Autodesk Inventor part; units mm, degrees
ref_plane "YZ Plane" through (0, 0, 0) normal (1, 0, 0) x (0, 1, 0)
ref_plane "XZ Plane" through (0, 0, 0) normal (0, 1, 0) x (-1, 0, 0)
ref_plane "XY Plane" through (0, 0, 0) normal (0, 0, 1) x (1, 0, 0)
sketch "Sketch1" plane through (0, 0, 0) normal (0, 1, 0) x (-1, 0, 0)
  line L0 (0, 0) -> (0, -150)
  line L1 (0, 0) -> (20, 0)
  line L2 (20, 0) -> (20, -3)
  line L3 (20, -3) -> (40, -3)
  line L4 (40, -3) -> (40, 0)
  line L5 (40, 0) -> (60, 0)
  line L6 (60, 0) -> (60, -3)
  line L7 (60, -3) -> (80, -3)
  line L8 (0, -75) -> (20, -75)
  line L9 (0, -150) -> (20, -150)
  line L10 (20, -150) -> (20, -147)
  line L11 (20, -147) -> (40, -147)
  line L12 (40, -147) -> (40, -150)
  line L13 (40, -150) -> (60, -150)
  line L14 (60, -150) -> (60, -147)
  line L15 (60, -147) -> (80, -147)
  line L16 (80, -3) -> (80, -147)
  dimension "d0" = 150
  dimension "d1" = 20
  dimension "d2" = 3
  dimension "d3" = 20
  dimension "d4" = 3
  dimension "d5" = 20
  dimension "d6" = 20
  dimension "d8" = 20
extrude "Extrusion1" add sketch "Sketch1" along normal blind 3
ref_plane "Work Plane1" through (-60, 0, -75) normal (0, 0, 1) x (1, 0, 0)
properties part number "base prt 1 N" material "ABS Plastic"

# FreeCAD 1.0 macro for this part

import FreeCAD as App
import Part
import Sketcher

V = App.Vector
Q = App.Units.Quantity

doc = App.newDocument("Part")
body = doc.addObject("PartDesign::Body", "Body")

sketch1 = doc.addObject("Sketcher::SketchObject", "Sketch")
body.addObject(sketch1)
sketch1.AttachmentSupport = (doc.XZ_Plane, [""])
sketch1.MapMode = "FlatFace"
sketch1.addGeometry(Part.LineSegment(V(-20, 0, 0), V(0, 0, 0)), False)
sketch1.addGeometry(Part.LineSegment(V(0, 0, 0), V(0, -150, 0)), False)
sketch1.addGeometry(Part.LineSegment(V(0, -150, 0), V(-20, -150, 0)), False)
sketch1.addGeometry(Part.LineSegment(V(-20, -150, 0), V(-20, -147, 0)), False)
sketch1.addGeometry(Part.LineSegment(V(-20, -147, 0), V(-40, -147, 0)), False)
sketch1.addGeometry(Part.LineSegment(V(-40, -147, 0), V(-40, -150, 0)), False)
sketch1.addGeometry(Part.LineSegment(V(-40, -150, 0), V(-60, -150, 0)), False)
sketch1.addGeometry(Part.LineSegment(V(-60, -150, 0), V(-60, -147, 0)), False)
sketch1.addGeometry(Part.LineSegment(V(-60, -147, 0), V(-80, -147, 0)), False)
sketch1.addGeometry(Part.LineSegment(V(-80, -147, 0), V(-80, -3, 0)), False)
sketch1.addGeometry(Part.LineSegment(V(-80, -3, 0), V(-60, -3, 0)), False)
sketch1.addGeometry(Part.LineSegment(V(-60, -3, 0), V(-60, 0, 0)), False)
sketch1.addGeometry(Part.LineSegment(V(-60, 0, 0), V(-40, 0, 0)), False)
sketch1.addGeometry(Part.LineSegment(V(-40, 0, 0), V(-40, -3, 0)), False)
sketch1.addGeometry(Part.LineSegment(V(-40, -3, 0), V(-20, -3, 0)), False)
sketch1.addGeometry(Part.LineSegment(V(-20, -3, 0), V(-20, 0, 0)), False)
sketch1.addConstraint(Sketcher.Constraint("Coincident", 0, 2, 1, 1))
sketch1.addConstraint(Sketcher.Constraint("Coincident", 1, 2, 2, 1))
sketch1.addConstraint(Sketcher.Constraint("Coincident", 2, 2, 3, 1))
sketch1.addConstraint(Sketcher.Constraint("Coincident", 3, 2, 4, 1))
sketch1.addConstraint(Sketcher.Constraint("Coincident", 4, 2, 5, 1))
sketch1.addConstraint(Sketcher.Constraint("Coincident", 5, 2, 6, 1))
sketch1.addConstraint(Sketcher.Constraint("Coincident", 6, 2, 7, 1))
sketch1.addConstraint(Sketcher.Constraint("Coincident", 7, 2, 8, 1))
sketch1.addConstraint(Sketcher.Constraint("Coincident", 8, 2, 9, 1))
sketch1.addConstraint(Sketcher.Constraint("Coincident", 9, 2, 10, 1))
sketch1.addConstraint(Sketcher.Constraint("Coincident", 10, 2, 11, 1))
sketch1.addConstraint(Sketcher.Constraint("Coincident", 11, 2, 12, 1))
sketch1.addConstraint(Sketcher.Constraint("Coincident", 12, 2, 13, 1))
sketch1.addConstraint(Sketcher.Constraint("Coincident", 13, 2, 14, 1))
sketch1.addConstraint(Sketcher.Constraint("Coincident", 14, 2, 15, 1))
sketch1.addConstraint(Sketcher.Constraint("Coincident", 15, 2, 0, 1))
sketch1.addConstraint(Sketcher.Constraint("Horizontal", 0))
sketch1.addConstraint(Sketcher.Constraint("Vertical", 1))
sketch1.addConstraint(Sketcher.Constraint("Horizontal", 2))
sketch1.addConstraint(Sketcher.Constraint("Vertical", 3))
sketch1.addConstraint(Sketcher.Constraint("Horizontal", 4))
sketch1.addConstraint(Sketcher.Constraint("Vertical", 5))
sketch1.addConstraint(Sketcher.Constraint("Horizontal", 6))
sketch1.addConstraint(Sketcher.Constraint("Vertical", 7))
sketch1.addConstraint(Sketcher.Constraint("Horizontal", 8))
sketch1.addConstraint(Sketcher.Constraint("Vertical", 9))
sketch1.addConstraint(Sketcher.Constraint("Horizontal", 10))
sketch1.addConstraint(Sketcher.Constraint("Vertical", 11))
sketch1.addConstraint(Sketcher.Constraint("Horizontal", 12))
sketch1.addConstraint(Sketcher.Constraint("Vertical", 13))
sketch1.addConstraint(Sketcher.Constraint("Horizontal", 14))
sketch1.addConstraint(Sketcher.Constraint("Vertical", 15))
sketch1.addConstraint(Sketcher.Constraint("Coincident", 0, 2, -1, 1))
sketch1.addConstraint(Sketcher.Constraint("PointOnObject", 11, 2, -1))
sketch1.addConstraint(Sketcher.Constraint("Horizontal", 2, 2, 5, 2))
sketch1.addConstraint(Sketcher.Constraint("Horizontal", 4, 2, 7, 2))
sketch1.addConstraint(Sketcher.Constraint("Horizontal", 10, 2, 13, 2))
sketch1.addConstraint(Sketcher.Constraint("Vertical", 7, 2, 10, 2))
sketch1.addConstraint(Sketcher.Constraint("Vertical", 5, 2, 12, 2))
sketch1.addConstraint(Sketcher.Constraint("Vertical", 3, 2, 14, 2))
sketch1.addConstraint(Sketcher.Constraint("Equal", 2, 4))
sketch1.addConstraint(Sketcher.Constraint("Equal", 4, 6))
sketch1.addConstraint(Sketcher.Constraint("Equal", 6, 8))
sketch1.addConstraint(Sketcher.Constraint("Equal", 7, 11))
sketch1.addConstraint(Sketcher.Constraint("DistanceX", 0, 1, 0, 2, Q("20 mm")))
sketch1.addConstraint(Sketcher.Constraint("DistanceY", 1, 2, 1, 1, Q("150 mm")))
sketch1.addConstraint(Sketcher.Constraint("DistanceY", 3, 1, 3, 2, Q("3 mm")))
pad1 = doc.addObject("PartDesign::Pad", "Pad")
body.addObject(pad1)
pad1.Profile = sketch1
pad1.Length = 3
pad1.Reversed = True

doc.recompute()
